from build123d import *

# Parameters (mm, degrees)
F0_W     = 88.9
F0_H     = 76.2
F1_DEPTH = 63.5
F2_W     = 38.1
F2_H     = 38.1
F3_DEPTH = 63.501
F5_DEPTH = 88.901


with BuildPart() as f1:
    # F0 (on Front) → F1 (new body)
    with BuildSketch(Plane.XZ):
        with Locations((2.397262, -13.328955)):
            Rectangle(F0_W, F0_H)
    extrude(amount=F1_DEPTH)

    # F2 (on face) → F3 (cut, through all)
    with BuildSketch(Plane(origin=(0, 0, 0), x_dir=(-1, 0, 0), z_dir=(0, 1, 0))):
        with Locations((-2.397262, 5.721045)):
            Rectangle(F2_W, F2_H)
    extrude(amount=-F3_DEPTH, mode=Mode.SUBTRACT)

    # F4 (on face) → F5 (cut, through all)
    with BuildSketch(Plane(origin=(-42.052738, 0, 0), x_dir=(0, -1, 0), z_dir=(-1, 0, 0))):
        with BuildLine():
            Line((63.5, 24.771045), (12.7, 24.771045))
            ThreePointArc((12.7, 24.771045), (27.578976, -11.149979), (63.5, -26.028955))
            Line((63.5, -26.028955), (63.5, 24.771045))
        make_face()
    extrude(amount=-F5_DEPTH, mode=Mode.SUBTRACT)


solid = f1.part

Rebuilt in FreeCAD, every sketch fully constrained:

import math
import FreeCAD as App
import Part
import Sketcher
from FreeCAD import Vector
Q = App.Units.Quantity

doc = App.newDocument("Part")
body = doc.addObject("PartDesign::Body", "Body")

# Sketch on XZ plane
sketch1 = doc.addObject("Sketcher::SketchObject", "Sketch")
body.addObject(sketch1)
sketch1.AttachmentSupport = (doc.XZ_Plane, [""])
sketch1.MapMode = "FlatFace"
sketch1.addGeometry([
    Part.LineSegment(Vector(-42, 25, 0), Vector(-42, -51, 0)),
    Part.LineSegment(Vector(-42, -51, 0), Vector(47, -51, 0)),
    Part.LineSegment(Vector(47, -51, 0), Vector(47, 25, 0)),
    Part.LineSegment(Vector(47, 25, 0), Vector(-42, 25, 0)),
], False)
sketch1.addConstraint([
    Sketcher.Constraint("Coincident", 0, 2, 1, 1),
    Sketcher.Constraint("Coincident", 1, 2, 2, 1),
    Sketcher.Constraint("Coincident", 2, 2, 3, 1),
    Sketcher.Constraint("Coincident", 3, 2, 0, 1),
    Sketcher.Constraint("Vertical", 0),
    Sketcher.Constraint("Horizontal", 1),
    Sketcher.Constraint("Vertical", 2),
    Sketcher.Constraint("Horizontal", 3),
    Sketcher.Constraint("DistanceY", 0, 2, 0, 1, Q("3 in")),
    Sketcher.Constraint("DistanceX", 1, 1, 1, 2, Q("3.5 in")),
    Sketcher.Constraint("DistanceX", 0, 2, -1, 1, 42.052738),
    Sketcher.Constraint("DistanceY", 0, 2, -1, 1, 51.428955),
])
pad1 = doc.addObject("PartDesign::Pad", "Pad")
body.addObject(pad1)
pad1.Profile = sketch1
pad1.Length = Q("2.5 in")

# Sketch on XZ plane
sketch2 = doc.addObject("Sketcher::SketchObject", "Sketch001")
body.addObject(sketch2)
sketch2.AttachmentSupport = (doc.XZ_Plane, [""])
sketch2.MapMode = "FlatFace"
sketch2.addGeometry([
    Part.LineSegment(Vector(21, 25, 0), Vector(21, -13, 0)),
    Part.LineSegment(Vector(21, -13, 0), Vector(-17, -13, 0)),
    Part.LineSegment(Vector(-17, -13, 0), Vector(-17, 25, 0)),
    Part.LineSegment(Vector(-17, 25, 0), Vector(21, 25, 0)),
], False)
sketch2.addConstraint([
    Sketcher.Constraint("Coincident", 0, 2, 1, 1),
    Sketcher.Constraint("Coincident", 1, 2, 2, 1),
    Sketcher.Constraint("Coincident", 2, 2, 3, 1),
    Sketcher.Constraint("Coincident", 3, 2, 0, 1),
    Sketcher.Constraint("Vertical", 0),
    Sketcher.Constraint("Horizontal", 1),
    Sketcher.Constraint("Vertical", 2),
    Sketcher.Constraint("Horizontal", 3),
    Sketcher.Constraint("Equal", 3, 0),
    Sketcher.Constraint("DistanceX", 1, 2, 1, 1, Q("1.5 in")),
    Sketcher.Constraint("DistanceX", -1, 1, 0, 2, 21.447262),
    Sketcher.Constraint("DistanceY", 0, 2, -1, 1, 13.328955),
])
pocket1 = doc.addObject("PartDesign::Pocket", "Pocket")
body.addObject(pocket1)
pocket1.Profile = sketch2
pocket1.Type = "ThroughAll"
pocket1.Reversed = True

# Sketch on YZ plane
sketch3 = doc.addObject("Sketcher::SketchObject", "Sketch002")
body.addObject(sketch3)
sketch3.AttachmentSupport = (doc.YZ_Plane, [""])
sketch3.MapMode = "FlatFace"
sketch3.AttachmentOffset = App.Placement(Vector(0, 0, -42.052738), App.Rotation())
sketch3.addGeometry([
    Part.LineSegment(Vector(-64, 25, 0), Vector(-13, 25, 0)),
    Part.ArcOfCircle(Part.Circle(Vector(-64, 25, 0), Vector(0, 0, 1), 51), math.radians(-90), math.radians(0)),
    Part.LineSegment(Vector(-64, -26, 0), Vector(-64, 25, 0)),
], False)
sketch3.addConstraint([
    Sketcher.Constraint("Coincident", 0, 2, 1, 2),
    Sketcher.Constraint("Coincident", 1, 1, 2, 1),
    Sketcher.Constraint("Coincident", 2, 2, 0, 1),
    Sketcher.Constraint("Horizontal", 0),
    Sketcher.Constraint("Vertical", 2),
    Sketcher.Constraint("Coincident", 2, 2, 1, 3),
    Sketcher.Constraint("Radius", 1, Q("2.0000001 in")),
    Sketcher.Constraint("DistanceX", 1, 3, -1, 1, Q("2.5000001 in")),
    Sketcher.Constraint("DistanceY", -1, 1, 1, 3, 24.771047),
])
pocket2 = doc.addObject("PartDesign::Pocket", "Pocket001")
body.addObject(pocket2)
pocket2.Profile = sketch3
pocket2.Type = "ThroughAll"
pocket2.Reversed = True

doc.recompute()
